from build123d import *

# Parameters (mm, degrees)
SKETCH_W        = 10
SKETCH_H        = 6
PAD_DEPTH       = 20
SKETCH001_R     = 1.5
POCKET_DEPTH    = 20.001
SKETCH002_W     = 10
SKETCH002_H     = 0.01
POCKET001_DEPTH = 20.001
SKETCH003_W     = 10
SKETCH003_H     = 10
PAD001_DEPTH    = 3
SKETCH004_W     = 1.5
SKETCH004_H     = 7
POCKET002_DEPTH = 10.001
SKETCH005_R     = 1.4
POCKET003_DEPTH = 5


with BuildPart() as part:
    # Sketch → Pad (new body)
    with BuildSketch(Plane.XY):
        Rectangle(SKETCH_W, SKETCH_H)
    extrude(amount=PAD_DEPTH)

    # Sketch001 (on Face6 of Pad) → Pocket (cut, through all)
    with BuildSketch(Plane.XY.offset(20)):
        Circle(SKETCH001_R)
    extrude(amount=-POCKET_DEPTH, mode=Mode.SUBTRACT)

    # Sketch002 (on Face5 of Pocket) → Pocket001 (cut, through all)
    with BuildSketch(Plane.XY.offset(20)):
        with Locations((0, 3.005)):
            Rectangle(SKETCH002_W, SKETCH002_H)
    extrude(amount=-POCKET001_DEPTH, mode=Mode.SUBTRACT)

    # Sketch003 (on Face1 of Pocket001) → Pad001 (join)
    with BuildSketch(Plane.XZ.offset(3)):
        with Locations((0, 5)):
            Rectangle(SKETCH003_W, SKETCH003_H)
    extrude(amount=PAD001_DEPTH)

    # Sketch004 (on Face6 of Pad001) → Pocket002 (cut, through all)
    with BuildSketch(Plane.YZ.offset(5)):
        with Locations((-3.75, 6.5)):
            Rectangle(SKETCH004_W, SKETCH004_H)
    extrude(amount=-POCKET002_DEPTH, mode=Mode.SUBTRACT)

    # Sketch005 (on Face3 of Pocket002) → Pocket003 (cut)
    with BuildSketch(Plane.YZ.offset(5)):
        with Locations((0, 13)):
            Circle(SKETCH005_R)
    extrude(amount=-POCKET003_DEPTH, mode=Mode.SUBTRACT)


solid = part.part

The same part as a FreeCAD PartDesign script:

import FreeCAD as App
import Part
import Sketcher
from FreeCAD import Vector
Q = App.Units.Quantity


def add_polygon(sketch, points):
    """Adds a closed chain of lines whose ends are joined by coincident constraints."""
    first, n = sketch.GeometryCount, len(points)
    for a, b in zip(points, points[1:] + points[:1]):
        sketch.addGeometry(Part.LineSegment(App.Vector(*a, 0), App.Vector(*b, 0)), False)
    for i in range(n):
        sketch.addConstraint(Sketcher.Constraint("Coincident", first + i, 2, first + (i + 1) % n, 1))

doc = App.newDocument("Part")
body = doc.addObject("PartDesign::Body", "Body")

sketch1 = body.newObject("Sketcher::SketchObject", "Sketch")
sketch1.AttachmentSupport = (doc.getObject("XY_Plane"), [""])
sketch1.MapMode = "FlatFace"
add_polygon(sketch1, [(-5, 3), (-5, -3), (5, -3), (5, 3)])
sketch1.addConstraint(Sketcher.Constraint("Vertical", 0))
sketch1.addConstraint(Sketcher.Constraint("Horizontal", 1))
sketch1.addConstraint(Sketcher.Constraint("Vertical", 2))
sketch1.addConstraint(Sketcher.Constraint("Horizontal", 3))
sketch1.addConstraint(Sketcher.Constraint("Symmetric", 0, 2, 2, 2, -1, 1))
sketch1.addConstraint(Sketcher.Constraint("DistanceX", 1, 1, 1, 2, Q("10 mm")))
sketch1.addConstraint(Sketcher.Constraint("DistanceY", 0, 2, 0, 1, Q("6 mm")))
pad1 = body.newObject("PartDesign::Pad", "Pad")
pad1.Profile = sketch1
pad1.Length = 20

sketch2 = body.newObject("Sketcher::SketchObject", "Sketch001")
sketch2.AttachmentSupport = (doc.getObject("XY_Plane"), [""])
sketch2.MapMode = "FlatFace"
sketch2.AttachmentOffset = App.Placement(Vector(0, 0, 20), App.Rotation())
sketch2.addGeometry(Part.Circle(Vector(0, 0, 0), Vector(0, 0, 1), 1.5), False)
sketch2.addConstraint(Sketcher.Constraint("Coincident", 0, 3, -1, 1))
sketch2.addConstraint(Sketcher.Constraint("Diameter", 0, Q("3 mm")))
pocket1 = body.newObject("PartDesign::Pocket", "Pocket")
pocket1.Profile = sketch2
pocket1.Type = "ThroughAll"

sketch3 = body.newObject("Sketcher::SketchObject", "Sketch002")
sketch3.AttachmentSupport = (doc.getObject("XY_Plane"), [""])
sketch3.MapMode = "FlatFace"
sketch3.AttachmentOffset = App.Placement(Vector(0, 0, 20), App.Rotation())
add_polygon(sketch3, [(-5, 3.01), (-5, 3), (5, 3), (5, 3.01)])
sketch3.addConstraint(Sketcher.Constraint("Vertical", 0))
sketch3.addConstraint(Sketcher.Constraint("Horizontal", 1))
sketch3.addConstraint(Sketcher.Constraint("Vertical", 2))
sketch3.addConstraint(Sketcher.Constraint("Horizontal", 3))
sketch3.addConstraint(Sketcher.Constraint("DistanceX", 1, 1, 1, 2, Q("10 mm")))
sketch3.addConstraint(Sketcher.Constraint("DistanceX", 0, 2, -1, 1, Q("5 mm")))
sketch3.addConstraint(Sketcher.Constraint("DistanceY", -1, 1, 0, 2, Q("3 mm")))
sketch3.addConstraint(Sketcher.Constraint("DistanceY", 0, 2, 0, 1, Q("0.01 mm")))
pocket2 = body.newObject("PartDesign::Pocket", "Pocket001")
pocket2.Profile = sketch3
pocket2.Type = "ThroughAll"

sketch4 = body.newObject("Sketcher::SketchObject", "Sketch003")
sketch4.AttachmentSupport = (doc.getObject("XZ_Plane"), [""])
sketch4.MapMode = "FlatFace"
sketch4.AttachmentOffset = App.Placement(Vector(0, 0, 3), App.Rotation())
add_polygon(sketch4, [(-5, 10), (-5, 0), (5, 0), (5, 10)])
sketch4.addConstraint(Sketcher.Constraint("Vertical", 0))
sketch4.addConstraint(Sketcher.Constraint("Horizontal", 1))
sketch4.addConstraint(Sketcher.Constraint("Vertical", 2))
sketch4.addConstraint(Sketcher.Constraint("Horizontal", 3))
sketch4.addConstraint(Sketcher.Constraint("Symmetric", 0, 2, 1, 2, -1, 1))
sketch4.addConstraint(Sketcher.Constraint("Equal", 3, 0))
sketch4.addConstraint(Sketcher.Constraint("DistanceX", 1, 1, 1, 2, Q("10 mm")))
pad2 = body.newObject("PartDesign::Pad", "Pad001")
pad2.Profile = sketch4
pad2.Length = 3

sketch5 = body.newObject("Sketcher::SketchObject", "Sketch004")
sketch5.AttachmentSupport = (doc.getObject("YZ_Plane"), [""])
sketch5.MapMode = "FlatFace"
sketch5.AttachmentOffset = App.Placement(Vector(0, 0, 5), App.Rotation())
add_polygon(sketch5, [(-4.5, 10), (-4.5, 3), (-3, 3), (-3, 10)])
sketch5.addConstraint(Sketcher.Constraint("Vertical", 0))
sketch5.addConstraint(Sketcher.Constraint("Horizontal", 1))
sketch5.addConstraint(Sketcher.Constraint("Vertical", 2))
sketch5.addConstraint(Sketcher.Constraint("Horizontal", 3))
sketch5.addConstraint(Sketcher.Constraint("DistanceY", 0, 2, 0, 1, Q("7 mm")))
sketch5.addConstraint(Sketcher.Constraint("DistanceX", 1, 1, 1, 2, Q("1.5 mm")))
sketch5.addConstraint(Sketcher.Constraint("DistanceY", -1, 1, 0, 2, Q("3 mm")))
sketch5.addConstraint(Sketcher.Constraint("DistanceX", 1, 2, -1, 1, Q("3 mm")))
pocket3 = body.newObject("PartDesign::Pocket", "Pocket002")
pocket3.Profile = sketch5
pocket3.Type = "ThroughAll"

sketch6 = body.newObject("Sketcher::SketchObject", "Sketch005")
sketch6.AttachmentSupport = (doc.getObject("YZ_Plane"), [""])
sketch6.MapMode = "FlatFace"
sketch6.AttachmentOffset = App.Placement(Vector(0, 0, 5), App.Rotation())
sketch6.addGeometry(Part.Circle(Vector(0, 13, 0), Vector(0, 0, 1), 1.4), False)
sketch6.addConstraint(Sketcher.Constraint("PointOnObject", 0, 3, -2))
sketch6.addConstraint(Sketcher.Constraint("Diameter", 0, Q("2.8 mm")))
sketch6.addConstraint(Sketcher.Constraint("DistanceY", -1, 1, 0, 3, Q("13 mm")))
pocket4 = body.newObject("PartDesign::Pocket", "Pocket003")
pocket4.Profile = sketch6
pocket4.Length = 5

doc.recompute()
